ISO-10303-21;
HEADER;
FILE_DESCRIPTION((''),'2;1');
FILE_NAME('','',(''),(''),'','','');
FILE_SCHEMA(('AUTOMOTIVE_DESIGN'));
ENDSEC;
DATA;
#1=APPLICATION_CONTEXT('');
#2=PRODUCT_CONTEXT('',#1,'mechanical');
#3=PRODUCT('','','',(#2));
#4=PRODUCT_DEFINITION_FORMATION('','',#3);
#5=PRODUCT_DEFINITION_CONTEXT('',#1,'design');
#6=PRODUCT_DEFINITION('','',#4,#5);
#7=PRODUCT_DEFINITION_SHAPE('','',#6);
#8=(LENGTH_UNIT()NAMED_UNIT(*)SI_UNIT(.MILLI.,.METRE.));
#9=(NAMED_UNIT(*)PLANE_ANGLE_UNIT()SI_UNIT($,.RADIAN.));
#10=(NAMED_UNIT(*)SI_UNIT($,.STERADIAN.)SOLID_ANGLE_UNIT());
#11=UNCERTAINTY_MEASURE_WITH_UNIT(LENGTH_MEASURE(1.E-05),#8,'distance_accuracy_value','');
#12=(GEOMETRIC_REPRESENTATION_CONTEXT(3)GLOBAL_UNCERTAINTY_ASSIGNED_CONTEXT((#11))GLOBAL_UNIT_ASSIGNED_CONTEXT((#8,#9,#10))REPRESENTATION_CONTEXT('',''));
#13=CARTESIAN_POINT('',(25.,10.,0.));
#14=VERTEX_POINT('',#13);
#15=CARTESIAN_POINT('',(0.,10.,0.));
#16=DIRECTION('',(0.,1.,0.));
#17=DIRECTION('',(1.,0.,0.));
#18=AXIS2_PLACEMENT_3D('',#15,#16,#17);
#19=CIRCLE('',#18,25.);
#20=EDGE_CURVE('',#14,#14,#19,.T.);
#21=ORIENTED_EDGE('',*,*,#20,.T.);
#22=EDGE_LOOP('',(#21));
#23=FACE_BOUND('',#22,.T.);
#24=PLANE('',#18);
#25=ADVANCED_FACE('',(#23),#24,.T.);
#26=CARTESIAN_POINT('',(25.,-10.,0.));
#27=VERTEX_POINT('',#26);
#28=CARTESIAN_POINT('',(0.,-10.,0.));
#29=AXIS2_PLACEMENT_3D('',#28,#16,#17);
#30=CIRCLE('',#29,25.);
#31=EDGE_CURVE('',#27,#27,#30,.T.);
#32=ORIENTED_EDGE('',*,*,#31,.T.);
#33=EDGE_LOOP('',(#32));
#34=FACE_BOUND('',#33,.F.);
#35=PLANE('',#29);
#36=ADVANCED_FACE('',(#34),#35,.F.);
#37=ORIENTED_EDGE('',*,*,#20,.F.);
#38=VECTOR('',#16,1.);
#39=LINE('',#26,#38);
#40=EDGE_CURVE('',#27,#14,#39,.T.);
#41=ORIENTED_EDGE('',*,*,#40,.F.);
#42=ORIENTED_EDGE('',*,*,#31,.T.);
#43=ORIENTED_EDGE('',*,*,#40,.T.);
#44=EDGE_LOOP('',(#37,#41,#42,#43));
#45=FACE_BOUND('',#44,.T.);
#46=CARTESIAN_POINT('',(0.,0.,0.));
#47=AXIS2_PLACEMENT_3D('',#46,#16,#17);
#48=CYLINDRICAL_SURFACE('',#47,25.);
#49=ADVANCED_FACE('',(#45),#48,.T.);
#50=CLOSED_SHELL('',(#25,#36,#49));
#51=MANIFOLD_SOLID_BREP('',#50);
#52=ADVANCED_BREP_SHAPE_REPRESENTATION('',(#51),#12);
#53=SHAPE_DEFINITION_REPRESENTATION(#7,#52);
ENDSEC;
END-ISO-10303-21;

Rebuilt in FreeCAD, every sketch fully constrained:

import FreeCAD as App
import Part
import Sketcher

doc = App.newDocument("Part")
body = doc.addObject("PartDesign::Body", "Body")

# Sketch on XZ plane
sketch1 = body.newObject("Sketcher::SketchObject", "Sketch")
sketch1.AttachmentSupport = (doc.getObject("XZ_Plane"), [""])
sketch1.MapMode = "FlatFace"
sketch1.addGeometry(Part.Circle(App.Vector(0, 0, 0), App.Vector(0, 0, 1), 25), False)
sketch1.addConstraint([
    Sketcher.Constraint("Coincident", 0, 3, -1, 1),
    Sketcher.Constraint("Diameter", 0, 50.0),
])
pad1 = body.newObject("PartDesign::Pad", "Pad")
pad1.Profile = sketch1
pad1.Length = 20
pad1.Midplane = True

doc.recompute()
